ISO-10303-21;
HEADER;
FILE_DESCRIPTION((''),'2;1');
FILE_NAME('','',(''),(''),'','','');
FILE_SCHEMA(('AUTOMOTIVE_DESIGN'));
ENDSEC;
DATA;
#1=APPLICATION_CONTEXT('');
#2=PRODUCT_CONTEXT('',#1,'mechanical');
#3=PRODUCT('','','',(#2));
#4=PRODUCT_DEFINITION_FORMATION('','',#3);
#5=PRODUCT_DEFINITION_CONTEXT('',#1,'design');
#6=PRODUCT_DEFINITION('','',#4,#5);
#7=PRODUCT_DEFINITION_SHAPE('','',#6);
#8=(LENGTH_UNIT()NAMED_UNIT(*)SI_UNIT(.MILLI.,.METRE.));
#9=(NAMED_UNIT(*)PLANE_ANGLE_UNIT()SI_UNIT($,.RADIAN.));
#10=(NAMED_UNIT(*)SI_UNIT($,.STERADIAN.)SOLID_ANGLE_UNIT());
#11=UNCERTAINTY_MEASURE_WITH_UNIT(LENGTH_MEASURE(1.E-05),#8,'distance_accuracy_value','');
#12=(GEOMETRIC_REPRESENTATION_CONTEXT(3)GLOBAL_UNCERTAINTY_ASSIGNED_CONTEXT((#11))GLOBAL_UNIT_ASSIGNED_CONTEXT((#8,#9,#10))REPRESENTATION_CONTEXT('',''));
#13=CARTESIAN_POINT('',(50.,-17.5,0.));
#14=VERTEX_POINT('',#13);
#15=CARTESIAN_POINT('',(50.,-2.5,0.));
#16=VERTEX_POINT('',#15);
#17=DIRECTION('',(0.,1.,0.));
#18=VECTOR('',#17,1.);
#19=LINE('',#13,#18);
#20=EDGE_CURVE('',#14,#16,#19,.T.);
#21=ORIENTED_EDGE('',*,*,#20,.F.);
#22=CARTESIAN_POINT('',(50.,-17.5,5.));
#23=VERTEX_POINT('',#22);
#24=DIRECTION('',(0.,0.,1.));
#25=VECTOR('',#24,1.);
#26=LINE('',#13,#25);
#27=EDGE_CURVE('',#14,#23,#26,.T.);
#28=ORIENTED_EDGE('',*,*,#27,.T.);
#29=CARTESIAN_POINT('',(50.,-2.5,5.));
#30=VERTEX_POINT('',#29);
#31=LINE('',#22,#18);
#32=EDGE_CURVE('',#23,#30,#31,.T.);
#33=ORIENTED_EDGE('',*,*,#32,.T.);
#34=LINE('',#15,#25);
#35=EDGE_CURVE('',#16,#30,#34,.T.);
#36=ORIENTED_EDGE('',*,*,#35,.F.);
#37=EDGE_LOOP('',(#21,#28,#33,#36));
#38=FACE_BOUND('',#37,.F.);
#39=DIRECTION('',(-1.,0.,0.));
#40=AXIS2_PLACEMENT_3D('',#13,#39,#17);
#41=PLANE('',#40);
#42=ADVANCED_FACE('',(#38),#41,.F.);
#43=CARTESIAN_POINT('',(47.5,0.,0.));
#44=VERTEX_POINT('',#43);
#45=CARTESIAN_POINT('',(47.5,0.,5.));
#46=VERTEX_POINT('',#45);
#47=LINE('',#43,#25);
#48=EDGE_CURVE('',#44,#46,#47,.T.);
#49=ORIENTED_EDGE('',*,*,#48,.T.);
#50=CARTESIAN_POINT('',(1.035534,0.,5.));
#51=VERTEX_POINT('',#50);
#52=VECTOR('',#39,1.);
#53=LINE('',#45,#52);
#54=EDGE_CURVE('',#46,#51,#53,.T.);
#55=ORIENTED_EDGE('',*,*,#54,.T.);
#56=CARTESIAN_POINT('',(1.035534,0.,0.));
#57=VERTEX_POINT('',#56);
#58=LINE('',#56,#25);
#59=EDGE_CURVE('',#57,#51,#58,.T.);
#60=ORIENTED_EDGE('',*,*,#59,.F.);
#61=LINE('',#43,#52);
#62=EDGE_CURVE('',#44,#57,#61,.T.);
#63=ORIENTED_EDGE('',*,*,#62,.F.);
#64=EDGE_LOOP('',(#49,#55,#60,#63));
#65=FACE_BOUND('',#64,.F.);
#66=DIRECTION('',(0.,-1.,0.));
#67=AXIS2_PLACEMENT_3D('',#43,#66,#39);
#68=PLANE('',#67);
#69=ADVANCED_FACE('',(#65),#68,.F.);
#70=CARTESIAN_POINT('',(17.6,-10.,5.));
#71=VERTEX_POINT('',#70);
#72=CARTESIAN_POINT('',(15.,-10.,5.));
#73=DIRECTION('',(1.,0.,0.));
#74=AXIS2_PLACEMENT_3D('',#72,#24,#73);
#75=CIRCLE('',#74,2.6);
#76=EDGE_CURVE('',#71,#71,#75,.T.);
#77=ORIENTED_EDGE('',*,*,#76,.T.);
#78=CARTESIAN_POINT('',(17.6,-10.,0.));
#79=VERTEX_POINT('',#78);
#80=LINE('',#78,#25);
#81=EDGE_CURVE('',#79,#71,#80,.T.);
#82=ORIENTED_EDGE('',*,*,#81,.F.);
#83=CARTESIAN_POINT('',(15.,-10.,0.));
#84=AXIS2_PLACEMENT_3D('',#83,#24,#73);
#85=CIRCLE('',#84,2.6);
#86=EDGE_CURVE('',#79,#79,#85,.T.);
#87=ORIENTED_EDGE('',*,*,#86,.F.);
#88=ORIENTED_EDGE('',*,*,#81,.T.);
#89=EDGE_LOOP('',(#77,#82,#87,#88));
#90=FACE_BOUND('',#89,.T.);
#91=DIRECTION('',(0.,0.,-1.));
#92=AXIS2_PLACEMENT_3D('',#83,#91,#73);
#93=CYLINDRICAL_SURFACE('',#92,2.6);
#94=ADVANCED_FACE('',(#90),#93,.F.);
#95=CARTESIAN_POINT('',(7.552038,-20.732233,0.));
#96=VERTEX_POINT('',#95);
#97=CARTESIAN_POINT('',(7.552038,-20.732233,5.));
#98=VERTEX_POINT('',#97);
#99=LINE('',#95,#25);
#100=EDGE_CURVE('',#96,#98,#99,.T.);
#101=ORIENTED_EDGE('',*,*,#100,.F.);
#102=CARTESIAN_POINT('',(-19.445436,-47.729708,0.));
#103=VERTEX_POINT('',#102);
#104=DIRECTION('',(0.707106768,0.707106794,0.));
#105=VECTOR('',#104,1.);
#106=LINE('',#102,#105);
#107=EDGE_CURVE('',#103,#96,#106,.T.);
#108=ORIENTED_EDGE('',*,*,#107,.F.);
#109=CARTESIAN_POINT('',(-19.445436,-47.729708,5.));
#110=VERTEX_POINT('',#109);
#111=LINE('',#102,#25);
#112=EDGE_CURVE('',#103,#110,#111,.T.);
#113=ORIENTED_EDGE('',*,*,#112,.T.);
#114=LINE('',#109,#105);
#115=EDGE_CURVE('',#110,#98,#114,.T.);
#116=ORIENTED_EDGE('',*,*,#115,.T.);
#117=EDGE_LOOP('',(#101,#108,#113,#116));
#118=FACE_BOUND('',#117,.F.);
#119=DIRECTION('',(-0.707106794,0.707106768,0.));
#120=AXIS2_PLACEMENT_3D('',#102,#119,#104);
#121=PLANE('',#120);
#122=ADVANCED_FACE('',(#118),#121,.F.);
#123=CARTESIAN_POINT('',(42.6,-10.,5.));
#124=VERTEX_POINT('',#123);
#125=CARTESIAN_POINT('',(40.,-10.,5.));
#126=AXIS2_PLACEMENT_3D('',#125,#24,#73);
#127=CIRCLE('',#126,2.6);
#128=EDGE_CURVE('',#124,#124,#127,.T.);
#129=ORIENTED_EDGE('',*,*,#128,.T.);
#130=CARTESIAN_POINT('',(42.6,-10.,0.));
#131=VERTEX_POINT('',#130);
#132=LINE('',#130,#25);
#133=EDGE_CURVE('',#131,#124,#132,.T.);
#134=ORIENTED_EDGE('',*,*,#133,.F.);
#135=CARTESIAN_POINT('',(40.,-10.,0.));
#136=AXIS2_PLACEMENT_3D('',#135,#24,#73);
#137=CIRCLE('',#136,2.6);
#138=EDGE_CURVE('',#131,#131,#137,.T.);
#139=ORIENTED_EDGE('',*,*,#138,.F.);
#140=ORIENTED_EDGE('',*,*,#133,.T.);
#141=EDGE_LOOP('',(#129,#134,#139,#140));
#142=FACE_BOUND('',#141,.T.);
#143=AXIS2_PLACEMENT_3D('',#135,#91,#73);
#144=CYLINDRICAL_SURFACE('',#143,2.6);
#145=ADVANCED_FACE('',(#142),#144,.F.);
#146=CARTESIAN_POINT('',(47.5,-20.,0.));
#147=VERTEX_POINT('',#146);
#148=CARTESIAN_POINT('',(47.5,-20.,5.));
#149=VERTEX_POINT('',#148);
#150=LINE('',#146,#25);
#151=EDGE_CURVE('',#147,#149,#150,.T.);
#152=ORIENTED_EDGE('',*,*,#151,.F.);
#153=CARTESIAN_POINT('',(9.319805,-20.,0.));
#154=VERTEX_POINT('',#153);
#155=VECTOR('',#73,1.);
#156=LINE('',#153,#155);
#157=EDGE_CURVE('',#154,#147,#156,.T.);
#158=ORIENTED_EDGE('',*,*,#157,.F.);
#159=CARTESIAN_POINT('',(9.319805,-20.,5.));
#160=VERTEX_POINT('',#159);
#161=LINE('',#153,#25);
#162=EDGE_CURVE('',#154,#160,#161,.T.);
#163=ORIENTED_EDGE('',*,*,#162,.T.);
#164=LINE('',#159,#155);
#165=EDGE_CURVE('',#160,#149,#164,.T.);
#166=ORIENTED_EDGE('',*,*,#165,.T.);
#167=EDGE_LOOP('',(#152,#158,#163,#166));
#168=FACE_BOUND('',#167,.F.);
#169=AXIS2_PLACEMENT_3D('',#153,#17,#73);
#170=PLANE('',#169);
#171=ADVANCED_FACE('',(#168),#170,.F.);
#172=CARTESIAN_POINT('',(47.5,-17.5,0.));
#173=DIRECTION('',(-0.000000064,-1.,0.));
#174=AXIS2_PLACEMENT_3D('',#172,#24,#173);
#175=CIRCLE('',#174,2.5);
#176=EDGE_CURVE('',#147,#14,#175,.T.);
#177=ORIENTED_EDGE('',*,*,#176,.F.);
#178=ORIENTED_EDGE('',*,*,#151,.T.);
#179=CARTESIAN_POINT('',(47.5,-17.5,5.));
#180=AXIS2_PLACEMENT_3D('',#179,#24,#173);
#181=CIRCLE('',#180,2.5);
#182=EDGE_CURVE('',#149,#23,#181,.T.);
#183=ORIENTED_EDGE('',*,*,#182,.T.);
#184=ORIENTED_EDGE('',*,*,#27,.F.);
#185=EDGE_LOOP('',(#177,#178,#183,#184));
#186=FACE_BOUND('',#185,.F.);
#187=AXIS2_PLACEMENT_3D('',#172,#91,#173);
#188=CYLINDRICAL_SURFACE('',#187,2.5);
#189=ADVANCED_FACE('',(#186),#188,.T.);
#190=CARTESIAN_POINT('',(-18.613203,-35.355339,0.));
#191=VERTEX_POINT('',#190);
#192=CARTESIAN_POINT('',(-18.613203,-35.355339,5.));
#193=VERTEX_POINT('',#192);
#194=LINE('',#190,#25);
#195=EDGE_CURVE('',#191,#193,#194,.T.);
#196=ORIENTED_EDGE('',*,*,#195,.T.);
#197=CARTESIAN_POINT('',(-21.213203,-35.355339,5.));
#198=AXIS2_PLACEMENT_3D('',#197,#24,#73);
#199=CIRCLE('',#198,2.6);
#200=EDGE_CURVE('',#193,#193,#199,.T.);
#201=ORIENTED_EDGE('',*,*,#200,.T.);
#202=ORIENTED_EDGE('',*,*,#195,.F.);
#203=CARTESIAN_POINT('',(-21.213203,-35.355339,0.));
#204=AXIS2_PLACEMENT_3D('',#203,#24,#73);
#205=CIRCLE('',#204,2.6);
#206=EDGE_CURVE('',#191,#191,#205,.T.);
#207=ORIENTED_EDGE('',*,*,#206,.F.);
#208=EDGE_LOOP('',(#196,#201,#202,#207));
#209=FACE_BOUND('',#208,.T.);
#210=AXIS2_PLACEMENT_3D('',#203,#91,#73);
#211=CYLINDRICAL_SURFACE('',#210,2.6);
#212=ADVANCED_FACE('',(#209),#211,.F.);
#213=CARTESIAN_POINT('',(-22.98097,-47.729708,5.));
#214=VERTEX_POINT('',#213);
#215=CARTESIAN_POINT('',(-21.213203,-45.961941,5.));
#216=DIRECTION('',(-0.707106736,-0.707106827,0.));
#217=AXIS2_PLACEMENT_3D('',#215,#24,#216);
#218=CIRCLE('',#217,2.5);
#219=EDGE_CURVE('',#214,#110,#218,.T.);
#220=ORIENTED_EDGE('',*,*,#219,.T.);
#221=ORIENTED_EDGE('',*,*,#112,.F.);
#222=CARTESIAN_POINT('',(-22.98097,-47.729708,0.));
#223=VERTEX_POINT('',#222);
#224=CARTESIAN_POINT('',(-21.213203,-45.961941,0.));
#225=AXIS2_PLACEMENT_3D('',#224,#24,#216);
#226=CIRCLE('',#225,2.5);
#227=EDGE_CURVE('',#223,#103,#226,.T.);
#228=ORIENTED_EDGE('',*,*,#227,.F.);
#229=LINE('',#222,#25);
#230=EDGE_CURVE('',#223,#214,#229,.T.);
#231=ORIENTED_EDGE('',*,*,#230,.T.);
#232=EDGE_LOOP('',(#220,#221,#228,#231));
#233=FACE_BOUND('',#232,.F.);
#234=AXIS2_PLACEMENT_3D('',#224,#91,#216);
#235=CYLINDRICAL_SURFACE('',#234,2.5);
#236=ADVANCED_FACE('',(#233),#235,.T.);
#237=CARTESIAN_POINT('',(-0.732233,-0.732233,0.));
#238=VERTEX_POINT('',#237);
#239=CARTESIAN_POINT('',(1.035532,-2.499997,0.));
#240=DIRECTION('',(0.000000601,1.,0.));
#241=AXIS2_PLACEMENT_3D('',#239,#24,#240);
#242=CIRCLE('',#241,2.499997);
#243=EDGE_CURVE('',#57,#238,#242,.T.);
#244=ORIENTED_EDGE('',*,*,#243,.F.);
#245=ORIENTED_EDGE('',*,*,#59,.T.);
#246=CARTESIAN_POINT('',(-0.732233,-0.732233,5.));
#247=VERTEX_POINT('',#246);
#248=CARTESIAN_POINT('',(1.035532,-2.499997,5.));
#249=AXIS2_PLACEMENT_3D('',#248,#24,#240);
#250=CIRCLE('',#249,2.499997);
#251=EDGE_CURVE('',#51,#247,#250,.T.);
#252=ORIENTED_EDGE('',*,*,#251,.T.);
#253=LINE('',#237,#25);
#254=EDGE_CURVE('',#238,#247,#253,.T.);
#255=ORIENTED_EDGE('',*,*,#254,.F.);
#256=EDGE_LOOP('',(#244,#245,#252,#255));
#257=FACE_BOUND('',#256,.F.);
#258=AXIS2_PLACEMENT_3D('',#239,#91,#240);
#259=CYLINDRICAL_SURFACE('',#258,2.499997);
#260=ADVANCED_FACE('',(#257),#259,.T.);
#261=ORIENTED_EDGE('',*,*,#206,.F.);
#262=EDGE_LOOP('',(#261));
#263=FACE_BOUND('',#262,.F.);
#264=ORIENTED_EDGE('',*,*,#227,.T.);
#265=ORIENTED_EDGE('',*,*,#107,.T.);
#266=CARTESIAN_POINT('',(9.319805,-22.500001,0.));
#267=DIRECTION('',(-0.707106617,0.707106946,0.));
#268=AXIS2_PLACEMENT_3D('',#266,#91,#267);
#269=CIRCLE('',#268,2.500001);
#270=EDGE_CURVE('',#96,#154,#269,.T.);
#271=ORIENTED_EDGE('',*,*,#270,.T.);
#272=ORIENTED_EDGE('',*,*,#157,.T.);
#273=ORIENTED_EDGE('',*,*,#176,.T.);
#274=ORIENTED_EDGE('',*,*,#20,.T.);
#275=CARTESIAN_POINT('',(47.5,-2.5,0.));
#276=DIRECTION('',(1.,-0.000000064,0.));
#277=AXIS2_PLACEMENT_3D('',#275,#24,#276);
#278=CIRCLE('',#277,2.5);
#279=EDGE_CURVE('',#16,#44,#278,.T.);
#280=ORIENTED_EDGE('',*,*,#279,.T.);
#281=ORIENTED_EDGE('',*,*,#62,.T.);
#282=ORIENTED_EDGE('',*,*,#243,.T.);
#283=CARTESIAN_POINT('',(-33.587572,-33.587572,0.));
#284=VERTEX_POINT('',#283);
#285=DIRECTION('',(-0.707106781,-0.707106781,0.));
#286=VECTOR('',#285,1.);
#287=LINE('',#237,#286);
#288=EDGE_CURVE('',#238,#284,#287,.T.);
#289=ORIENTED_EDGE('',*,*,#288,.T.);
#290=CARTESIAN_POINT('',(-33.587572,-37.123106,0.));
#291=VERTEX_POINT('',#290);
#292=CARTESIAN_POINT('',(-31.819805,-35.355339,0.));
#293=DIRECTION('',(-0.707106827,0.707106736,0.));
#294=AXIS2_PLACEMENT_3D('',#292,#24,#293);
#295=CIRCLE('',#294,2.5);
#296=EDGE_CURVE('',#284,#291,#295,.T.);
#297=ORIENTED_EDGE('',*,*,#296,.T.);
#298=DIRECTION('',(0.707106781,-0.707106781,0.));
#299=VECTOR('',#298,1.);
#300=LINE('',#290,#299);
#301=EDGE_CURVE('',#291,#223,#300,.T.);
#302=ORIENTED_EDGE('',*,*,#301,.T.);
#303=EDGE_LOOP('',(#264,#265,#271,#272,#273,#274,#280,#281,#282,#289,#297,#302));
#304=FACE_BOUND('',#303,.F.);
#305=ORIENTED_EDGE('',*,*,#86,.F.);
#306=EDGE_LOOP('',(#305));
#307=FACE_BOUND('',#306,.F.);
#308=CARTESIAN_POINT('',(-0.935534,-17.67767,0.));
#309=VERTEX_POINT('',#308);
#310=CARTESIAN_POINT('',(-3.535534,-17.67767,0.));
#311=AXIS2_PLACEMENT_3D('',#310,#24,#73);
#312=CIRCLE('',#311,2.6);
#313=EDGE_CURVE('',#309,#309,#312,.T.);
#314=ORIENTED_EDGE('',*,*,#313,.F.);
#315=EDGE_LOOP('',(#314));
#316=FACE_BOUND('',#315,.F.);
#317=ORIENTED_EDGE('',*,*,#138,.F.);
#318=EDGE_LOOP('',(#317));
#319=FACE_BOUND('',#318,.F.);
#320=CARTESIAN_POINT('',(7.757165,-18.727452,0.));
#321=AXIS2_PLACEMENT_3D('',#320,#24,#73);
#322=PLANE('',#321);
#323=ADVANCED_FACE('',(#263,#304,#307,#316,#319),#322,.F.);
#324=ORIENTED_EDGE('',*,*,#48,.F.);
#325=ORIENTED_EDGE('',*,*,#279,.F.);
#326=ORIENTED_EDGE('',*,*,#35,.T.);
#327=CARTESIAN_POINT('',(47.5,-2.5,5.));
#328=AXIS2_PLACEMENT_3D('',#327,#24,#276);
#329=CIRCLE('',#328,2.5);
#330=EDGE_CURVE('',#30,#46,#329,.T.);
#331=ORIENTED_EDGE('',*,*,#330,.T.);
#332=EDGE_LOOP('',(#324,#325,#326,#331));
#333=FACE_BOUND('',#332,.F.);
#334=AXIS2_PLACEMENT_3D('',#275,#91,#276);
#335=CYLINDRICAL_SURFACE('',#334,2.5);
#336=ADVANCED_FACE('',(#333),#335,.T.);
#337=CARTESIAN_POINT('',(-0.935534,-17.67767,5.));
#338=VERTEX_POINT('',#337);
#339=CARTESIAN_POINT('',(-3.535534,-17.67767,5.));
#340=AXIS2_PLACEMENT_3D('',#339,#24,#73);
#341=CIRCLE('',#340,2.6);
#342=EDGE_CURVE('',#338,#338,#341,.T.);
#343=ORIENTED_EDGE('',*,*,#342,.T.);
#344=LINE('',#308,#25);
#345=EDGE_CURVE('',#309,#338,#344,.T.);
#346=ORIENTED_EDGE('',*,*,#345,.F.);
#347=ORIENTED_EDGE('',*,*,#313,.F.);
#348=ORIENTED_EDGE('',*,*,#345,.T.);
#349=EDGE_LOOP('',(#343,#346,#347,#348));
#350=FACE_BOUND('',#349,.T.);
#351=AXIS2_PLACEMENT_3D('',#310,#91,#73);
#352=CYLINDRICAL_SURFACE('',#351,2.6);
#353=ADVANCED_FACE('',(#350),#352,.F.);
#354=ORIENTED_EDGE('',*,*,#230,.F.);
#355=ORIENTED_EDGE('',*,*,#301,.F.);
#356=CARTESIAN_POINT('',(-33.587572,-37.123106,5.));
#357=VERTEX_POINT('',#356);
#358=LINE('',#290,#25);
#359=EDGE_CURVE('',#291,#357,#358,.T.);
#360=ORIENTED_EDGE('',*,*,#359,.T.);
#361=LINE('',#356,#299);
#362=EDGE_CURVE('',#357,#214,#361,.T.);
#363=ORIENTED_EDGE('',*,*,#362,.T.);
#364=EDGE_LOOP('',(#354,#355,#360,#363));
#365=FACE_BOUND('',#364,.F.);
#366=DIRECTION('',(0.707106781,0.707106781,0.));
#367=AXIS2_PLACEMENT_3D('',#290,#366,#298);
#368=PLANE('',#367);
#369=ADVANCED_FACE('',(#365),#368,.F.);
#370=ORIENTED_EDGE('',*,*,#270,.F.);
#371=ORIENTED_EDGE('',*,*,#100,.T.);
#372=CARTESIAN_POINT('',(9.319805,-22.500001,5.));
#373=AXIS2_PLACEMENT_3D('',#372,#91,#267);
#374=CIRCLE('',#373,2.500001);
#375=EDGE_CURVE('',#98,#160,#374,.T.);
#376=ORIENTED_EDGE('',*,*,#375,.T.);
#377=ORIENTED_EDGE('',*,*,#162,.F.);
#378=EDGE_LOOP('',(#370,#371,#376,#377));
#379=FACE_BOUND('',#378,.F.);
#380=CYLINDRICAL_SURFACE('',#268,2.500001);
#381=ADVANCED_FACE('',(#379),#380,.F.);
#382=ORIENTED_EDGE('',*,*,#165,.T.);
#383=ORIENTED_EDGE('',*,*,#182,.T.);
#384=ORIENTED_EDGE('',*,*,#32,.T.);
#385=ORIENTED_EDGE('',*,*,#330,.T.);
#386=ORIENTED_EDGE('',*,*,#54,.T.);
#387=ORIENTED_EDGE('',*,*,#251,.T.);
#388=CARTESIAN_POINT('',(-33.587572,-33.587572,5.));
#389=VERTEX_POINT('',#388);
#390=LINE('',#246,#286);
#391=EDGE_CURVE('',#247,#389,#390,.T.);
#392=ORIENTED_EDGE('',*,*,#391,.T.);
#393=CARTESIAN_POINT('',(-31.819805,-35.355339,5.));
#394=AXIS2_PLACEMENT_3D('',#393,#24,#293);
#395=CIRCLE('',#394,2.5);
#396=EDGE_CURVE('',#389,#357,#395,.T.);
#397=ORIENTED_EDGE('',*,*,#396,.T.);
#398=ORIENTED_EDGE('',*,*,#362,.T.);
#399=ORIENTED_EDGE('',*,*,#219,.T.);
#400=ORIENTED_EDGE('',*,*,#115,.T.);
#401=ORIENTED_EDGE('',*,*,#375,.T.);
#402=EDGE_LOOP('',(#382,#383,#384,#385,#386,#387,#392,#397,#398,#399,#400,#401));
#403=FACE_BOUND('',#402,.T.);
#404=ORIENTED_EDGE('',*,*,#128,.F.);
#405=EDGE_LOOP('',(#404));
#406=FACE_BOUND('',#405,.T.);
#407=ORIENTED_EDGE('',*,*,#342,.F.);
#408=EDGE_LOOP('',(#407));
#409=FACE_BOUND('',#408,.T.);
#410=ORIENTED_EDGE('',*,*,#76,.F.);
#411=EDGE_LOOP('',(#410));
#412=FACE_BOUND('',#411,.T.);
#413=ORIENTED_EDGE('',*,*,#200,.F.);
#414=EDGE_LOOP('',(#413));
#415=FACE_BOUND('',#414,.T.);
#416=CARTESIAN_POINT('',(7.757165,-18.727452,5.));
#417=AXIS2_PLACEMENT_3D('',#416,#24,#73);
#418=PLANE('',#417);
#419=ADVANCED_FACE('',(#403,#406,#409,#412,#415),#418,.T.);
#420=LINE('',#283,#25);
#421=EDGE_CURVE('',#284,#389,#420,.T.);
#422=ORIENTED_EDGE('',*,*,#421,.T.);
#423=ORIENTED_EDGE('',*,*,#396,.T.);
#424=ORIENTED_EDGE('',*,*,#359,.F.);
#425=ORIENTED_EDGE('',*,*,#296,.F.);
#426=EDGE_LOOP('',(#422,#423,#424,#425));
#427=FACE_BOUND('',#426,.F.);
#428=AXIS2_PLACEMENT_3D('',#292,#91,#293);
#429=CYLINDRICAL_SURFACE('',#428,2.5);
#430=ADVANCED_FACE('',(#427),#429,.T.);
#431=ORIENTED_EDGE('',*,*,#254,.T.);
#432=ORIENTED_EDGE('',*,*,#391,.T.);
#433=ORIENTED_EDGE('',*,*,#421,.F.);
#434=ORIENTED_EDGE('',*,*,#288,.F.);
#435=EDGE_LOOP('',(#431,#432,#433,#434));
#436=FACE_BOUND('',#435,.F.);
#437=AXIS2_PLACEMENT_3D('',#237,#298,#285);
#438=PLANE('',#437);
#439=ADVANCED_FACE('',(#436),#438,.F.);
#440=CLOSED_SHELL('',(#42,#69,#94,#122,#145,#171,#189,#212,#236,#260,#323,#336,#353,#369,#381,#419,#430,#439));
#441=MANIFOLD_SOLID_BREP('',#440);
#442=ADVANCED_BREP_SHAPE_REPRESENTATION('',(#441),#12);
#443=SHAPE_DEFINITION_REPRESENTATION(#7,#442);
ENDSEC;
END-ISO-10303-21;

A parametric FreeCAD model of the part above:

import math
import FreeCAD as App
import Part
import Sketcher

V = App.Vector
Q = App.Units.Quantity

doc = App.newDocument("Part")
body = doc.addObject("PartDesign::Body", "Body")

# Sketch on XY plane
sketch1 = body.newObject("Sketcher::SketchObject", "Sketch")
sketch1.AttachmentSupport = (doc.getObject("XY_Plane"), [""])
sketch1.MapMode = "FlatFace"
sketch1.addGeometry([
    Part.LineSegment(V(47.5, 0, 0), V(1, 0, 0)),  # 0
    Part.ArcOfCircle(Part.Circle(V(1, -2.5, 0), V(0, 0, 1), 2.5), math.radians(90), math.radians(135)),  # 1
    Part.LineSegment(V(-0.7, -0.7, 0), V(-33.6, -33.6, 0)),  # 2
    Part.ArcOfCircle(Part.Circle(V(-31.8, -35.4, 0), V(0, 0, 1), 2.5), math.radians(135), math.radians(225)),  # 3
    Part.LineSegment(V(-33.6, -37.1, 0), V(-23, -47.7, 0)),  # 4
    Part.ArcOfCircle(Part.Circle(V(-21.2, -46, 0), V(0, 0, 1), 2.5), math.radians(-135), math.radians(-45)),  # 5
    Part.LineSegment(V(-19.4, -47.7, 0), V(7.6, -20.7, 0)),  # 6
    Part.ArcOfCircle(Part.Circle(V(9.3, -22.5, 0), V(0, 0, 1), 2.5), math.radians(90), math.radians(135)),  # 7
    Part.LineSegment(V(9.3, -20, 0), V(47.5, -20, 0)),  # 8
    Part.ArcOfCircle(Part.Circle(V(47.5, -17.5, 0), V(0, 0, 1), 2.5), math.radians(-90), math.radians(0)),  # 9
    Part.LineSegment(V(50, -17.5, 0), V(50, -2.5, 0)),  # 10
    Part.ArcOfCircle(Part.Circle(V(47.5, -2.5, 0), V(0, 0, 1), 2.5), math.radians(0), math.radians(90)),  # 11
    Part.Circle(V(-21.2, -35.4, 0), V(0, 0, 1), 2.6),  # 12
    Part.Circle(V(-3.5, -17.7, 0), V(0, 0, 1), 2.6),  # 13
    Part.Circle(V(15, -10, 0), V(0, 0, 1), 2.6),  # 14
    Part.Circle(V(40, -10, 0), V(0, 0, 1), 2.6),  # 15
], False)
sketch1.addConstraint([
    Sketcher.Constraint("Tangent", 0, 2, 1, 1),
    Sketcher.Constraint("Tangent", 1, 2, 2, 1),
    Sketcher.Constraint("Tangent", 2, 2, 3, 1),
    Sketcher.Constraint("Tangent", 3, 2, 4, 1),
    Sketcher.Constraint("Tangent", 4, 2, 5, 1),
    Sketcher.Constraint("Tangent", 5, 2, 6, 1),
    Sketcher.Constraint("Tangent", 6, 2, 7, 2),
    Sketcher.Constraint("Tangent", 7, 1, 8, 1),
    Sketcher.Constraint("Tangent", 8, 2, 9, 1),
    Sketcher.Constraint("Tangent", 9, 2, 10, 1),
    Sketcher.Constraint("Tangent", 10, 2, 11, 1),
    Sketcher.Constraint("Tangent", 11, 2, 0, 1),
    Sketcher.Constraint("Horizontal", 0),
    Sketcher.Constraint("Horizontal", 8),
    Sketcher.Constraint("Vertical", 10),
    Sketcher.Constraint("Equal", 3, 5),
    Sketcher.Constraint("Equal", 5, 7),
    Sketcher.Constraint("Equal", 7, 9),
    Sketcher.Constraint("Equal", 9, 11),
    Sketcher.Constraint("Equal", 12, 13),
    Sketcher.Constraint("Equal", 13, 14),
    Sketcher.Constraint("Equal", 14, 15),
    Sketcher.Constraint("PointOnObject", 0, 2, -1),
    Sketcher.Constraint("Perpendicular", 2, 4),
    Sketcher.Constraint("Perpendicular", 4, 6),
    Sketcher.Constraint("Horizontal", 3, 3, 12, 3),
    Sketcher.Constraint("Horizontal", 14, 3, 15, 3),
    Sketcher.Constraint("Horizontal", 4, 2, 5, 2),
    Sketcher.Constraint("Vertical", 5, 3, 12, 3),
    Sketcher.Constraint("Diameter", 12, Q("5.2 mm")),
    Sketcher.Constraint("Radius", 3, Q("2.5 mm")),
    Sketcher.Constraint("DistanceY", 10, 1, 10, 2, Q("15 mm")),
    Sketcher.Constraint("Distance", 4, Q("15 mm")),
    Sketcher.Constraint("DistanceX", -1, 1, 14, 3, Q("15 mm")),
    Sketcher.Constraint("DistanceY", 14, 3, -1, 1, Q("10 mm")),
    Sketcher.Constraint("DistanceX", -1, 1, 15, 3, Q("40 mm")),
    Sketcher.Constraint("DistanceX", -1, 1, 9, 2, Q("50 mm")),
    Sketcher.Constraint("DistanceY", 6, 2, 1, 2, Q("20 mm")),
    Sketcher.Constraint("DistanceX", 13, 3, 1, 2, Q("2.803301 mm")),
    Sketcher.Constraint("DistanceX", 0, 2, 0, 1, Q("46.464466 mm")),
    Sketcher.Constraint("DistanceY", 3, 3, -1, 1, Q("35.355339 mm")),
    Sketcher.Constraint("DistanceY", 13, 3, -1, 1, Q("17.67767 mm")),
])
pad1 = body.newObject("PartDesign::Pad", "Pad")
pad1.Profile = sketch1
pad1.Length = 5

doc.recompute()
